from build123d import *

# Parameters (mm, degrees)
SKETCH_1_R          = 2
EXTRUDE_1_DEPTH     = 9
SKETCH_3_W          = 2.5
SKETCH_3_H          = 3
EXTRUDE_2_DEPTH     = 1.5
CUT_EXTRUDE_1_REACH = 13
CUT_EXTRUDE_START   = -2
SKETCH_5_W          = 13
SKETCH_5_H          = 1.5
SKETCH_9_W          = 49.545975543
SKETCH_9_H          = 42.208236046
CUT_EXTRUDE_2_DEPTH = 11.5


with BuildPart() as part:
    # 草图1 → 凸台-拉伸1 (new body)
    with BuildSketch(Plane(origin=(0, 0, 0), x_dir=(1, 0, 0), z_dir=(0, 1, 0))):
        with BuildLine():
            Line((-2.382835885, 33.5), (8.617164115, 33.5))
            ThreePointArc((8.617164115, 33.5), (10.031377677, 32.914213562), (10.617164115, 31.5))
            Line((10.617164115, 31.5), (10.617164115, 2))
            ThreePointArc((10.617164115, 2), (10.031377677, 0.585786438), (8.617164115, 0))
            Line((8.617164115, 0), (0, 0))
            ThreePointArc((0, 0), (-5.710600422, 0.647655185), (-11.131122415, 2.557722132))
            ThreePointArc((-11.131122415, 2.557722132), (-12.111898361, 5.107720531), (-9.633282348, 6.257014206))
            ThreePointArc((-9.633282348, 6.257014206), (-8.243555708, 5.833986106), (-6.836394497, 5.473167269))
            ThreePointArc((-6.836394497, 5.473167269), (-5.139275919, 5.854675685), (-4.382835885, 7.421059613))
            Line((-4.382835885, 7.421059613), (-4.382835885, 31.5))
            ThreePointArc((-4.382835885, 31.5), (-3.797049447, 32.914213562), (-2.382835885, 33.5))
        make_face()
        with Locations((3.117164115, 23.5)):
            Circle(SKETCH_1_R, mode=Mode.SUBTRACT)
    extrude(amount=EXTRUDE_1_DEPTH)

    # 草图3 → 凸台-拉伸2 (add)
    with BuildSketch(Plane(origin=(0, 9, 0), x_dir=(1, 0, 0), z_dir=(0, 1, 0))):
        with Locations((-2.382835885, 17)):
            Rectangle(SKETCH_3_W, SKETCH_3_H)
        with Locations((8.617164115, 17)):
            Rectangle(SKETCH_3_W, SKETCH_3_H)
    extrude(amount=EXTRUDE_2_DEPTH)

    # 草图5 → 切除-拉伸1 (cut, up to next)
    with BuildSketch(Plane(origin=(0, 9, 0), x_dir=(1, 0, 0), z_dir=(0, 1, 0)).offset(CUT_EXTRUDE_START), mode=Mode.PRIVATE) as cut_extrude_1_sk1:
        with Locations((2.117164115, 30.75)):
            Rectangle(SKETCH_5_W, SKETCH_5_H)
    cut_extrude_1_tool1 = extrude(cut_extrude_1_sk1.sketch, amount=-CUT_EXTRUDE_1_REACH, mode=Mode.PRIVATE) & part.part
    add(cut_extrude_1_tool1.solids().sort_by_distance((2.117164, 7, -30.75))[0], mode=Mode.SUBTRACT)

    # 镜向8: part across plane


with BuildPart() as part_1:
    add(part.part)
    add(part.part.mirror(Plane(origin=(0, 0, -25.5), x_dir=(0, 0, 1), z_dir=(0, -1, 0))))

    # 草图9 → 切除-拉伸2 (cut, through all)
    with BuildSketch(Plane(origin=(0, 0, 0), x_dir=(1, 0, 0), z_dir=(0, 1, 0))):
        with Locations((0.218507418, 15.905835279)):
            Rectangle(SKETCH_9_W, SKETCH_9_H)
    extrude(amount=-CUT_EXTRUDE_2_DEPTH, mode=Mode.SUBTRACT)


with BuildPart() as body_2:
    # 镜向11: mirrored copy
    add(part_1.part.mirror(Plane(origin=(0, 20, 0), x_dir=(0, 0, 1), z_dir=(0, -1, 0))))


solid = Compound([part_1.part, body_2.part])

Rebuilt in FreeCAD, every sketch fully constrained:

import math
import FreeCAD as App
import Part
import Sketcher
from FreeCAD import Vector
Q = App.Units.Quantity

doc = App.newDocument("Part")
params = doc.addObject("Spreadsheet::Sheet", "Params")
for row, (alias, value) in enumerate([
    ("sketch1_diameter", "4 mm"),
    ("sketch1_radius", "25.5 mm"),
    ("sketch1_width", "11 mm"),
    ("sketch1_height", "29.5 mm"),
    ("pad1_length", "9 mm"),
    ("sketch2_height", "3 mm"),
    ("sketch2_width", "2.5 mm"),
    ("pad2_length", "1.5 mm"),
    ("sketch3_width", "13 mm"),
    ("sketch3_height", "1.5 mm"),
], start=1):
    params.set(f"A{row}", alias)
    params.set(f"B{row}", "=" + value)
    params.setAlias(f"B{row}", alias)

body = doc.addObject("PartDesign::Body", "Body")

# Sketch on XZ plane
sketch1 = body.newObject("Sketcher::SketchObject", "Sketch")
sketch1.AttachmentSupport = (doc.getObject("XZ_Plane"), [""])
sketch1.MapMode = "FlatFace"
sketch1.addGeometry(Part.LineSegment(Vector(8.617164, -33.5, 0), Vector(-2.382836, -33.5, 0)), False)
sketch1.addGeometry(Part.ArcOfCircle(Part.Circle(Vector(-2.382836, -31.5, 0), Vector(0, 0, 1), 2), math.radians(-180), math.radians(-90)), False)
sketch1.addGeometry(Part.LineSegment(Vector(-4.382836, -31.5, 0), Vector(-4.382836, -7.42106, 0)), False)
sketch1.addGeometry(Part.ArcOfCircle(Part.Circle(Vector(-6.382836, -7.42106, 0), Vector(0, 0, 1), 2), math.radians(0), math.radians(103.10753)), False)
sketch1.addGeometry(Part.ArcOfCircle(Part.Circle(Vector(0.571115, -37.286101, 0), Vector(0, 0, 1), 32.663955), math.radians(103.10753), math.radians(108.204253)), False)
sketch1.addGeometry(Part.ArcOfCircle(Part.Circle(Vector(-10.258093, -4.357116, 0), Vector(0, 0, 1), 2), math.radians(115.88171), math.radians(288.204253)), False)
sketch1.addGeometry(Part.ArcOfCircle(Part.Circle(Vector(0, -25.5, 0), Vector(0, 0, 1), 25.5), math.radians(90), math.radians(115.88171)), False)
sketch1.addGeometry(Part.LineSegment(Vector(0, 0, 0), Vector(8.617164, 0, 0)), False)
sketch1.addGeometry(Part.ArcOfCircle(Part.Circle(Vector(8.617164, -2, 0), Vector(0, 0, 1), 2), math.radians(0), math.radians(90)), False)
sketch1.addGeometry(Part.LineSegment(Vector(10.617164, -2, 0), Vector(10.617164, -31.5, 0)), False)
sketch1.addGeometry(Part.ArcOfCircle(Part.Circle(Vector(8.617164, -31.5, 0), Vector(0, 0, 1), 2), math.radians(-90), math.radians(0)), False)
sketch1.addGeometry(Part.Circle(Vector(3.117164, -23.5, 0), Vector(0, 0, 1), 2), False)
sketch1.addConstraint(Sketcher.Constraint("Tangent", 0, 2, 1, 2))
sketch1.addConstraint(Sketcher.Constraint("Tangent", 1, 1, 2, 1))
sketch1.addConstraint(Sketcher.Constraint("Tangent", 2, 2, 3, 1))
sketch1.addConstraint(Sketcher.Constraint("Tangent", 3, 2, 4, 1))
sketch1.addConstraint(Sketcher.Constraint("Tangent", 4, 2, 5, 2))
sketch1.addConstraint(Sketcher.Constraint("Tangent", 5, 1, 6, 2))
sketch1.addConstraint(Sketcher.Constraint("Tangent", 6, 1, 7, 1))
sketch1.addConstraint(Sketcher.Constraint("Tangent", 7, 2, 8, 2))
sketch1.addConstraint(Sketcher.Constraint("Tangent", 8, 1, 9, 1))
sketch1.addConstraint(Sketcher.Constraint("Tangent", 9, 2, 10, 2))
sketch1.addConstraint(Sketcher.Constraint("Tangent", 10, 1, 0, 1))
sketch1.addConstraint(Sketcher.Constraint("Horizontal", 0))
sketch1.addConstraint(Sketcher.Constraint("Vertical", 2))
sketch1.addConstraint(Sketcher.Constraint("Horizontal", 7))
sketch1.addConstraint(Sketcher.Constraint("Vertical", 9))
sketch1.addConstraint(Sketcher.Constraint("Coincident", 6, 1, -1, 1))
sketch1.addConstraint(Sketcher.Constraint("Equal", 1, 3))
sketch1.addConstraint(Sketcher.Constraint("Equal", 3, 5))
sketch1.addConstraint(Sketcher.Constraint("Equal", 5, 8))
sketch1.addConstraint(Sketcher.Constraint("Equal", 8, 10))
sketch1.addConstraint(Sketcher.Constraint("Equal", 10, 11))
sketch1.addConstraint(Sketcher.Constraint("Diameter", 11, Q("4 mm")))
sketch1.addConstraint(Sketcher.Constraint("Radius", 6, Q("25.5 mm")))
sketch1.addConstraint(Sketcher.Constraint("DistanceX", 0, 2, 0, 1, Q("11 mm")))
sketch1.addConstraint(Sketcher.Constraint("DistanceY", 9, 2, 9, 1, Q("29.5 mm")))
sketch1.addConstraint(Sketcher.Constraint("DistanceY", 6, 3, 11, 3, Q("2 mm")))
sketch1.addConstraint(Sketcher.Constraint("DistanceX", 1, 3, 11, 3, Q("5.5 mm")))
sketch1.addConstraint(Sketcher.Constraint("Radius", 4, Q("32.663955 mm")))
sketch1.addConstraint(Sketcher.Constraint("DistanceY", 2, 1, 2, 2, Q("24.07894 mm")))
sketch1.addConstraint(Sketcher.Constraint("DistanceY", 4, 3, -1, 1, Q("37.286101 mm")))
sketch1.addConstraint(Sketcher.Constraint("DistanceX", 5, 3, 3, 2, Q("3.421699 mm")))
sketch1.setExpression("Constraints[21]", "Params.sketch1_diameter")
sketch1.setExpression("Constraints[22]", "Params.sketch1_radius")
sketch1.setExpression("Constraints[23]", "Params.sketch1_width")
sketch1.setExpression("Constraints[24]", "Params.sketch1_height")
pad1 = body.newObject("PartDesign::Pad", "Pad")
pad1.Profile = sketch1
pad1.setExpression("Length", "Params.pad1_length")
pad1.Reversed = True

# Sketch on XZ plane
sketch2 = body.newObject("Sketcher::SketchObject", "Sketch001")
sketch2.AttachmentSupport = (doc.getObject("XZ_Plane"), [""])
sketch2.MapMode = "FlatFace"
sketch2.AttachmentOffset = App.Placement(Vector(0, 0, -9), App.Rotation())
sketch2.addGeometry(Part.LineSegment(Vector(-3.632836, -18.5, 0), Vector(-3.632836, -15.5, 0)), False)
sketch2.addGeometry(Part.LineSegment(Vector(-3.632836, -15.5, 0), Vector(-1.132836, -15.5, 0)), False)
sketch2.addGeometry(Part.LineSegment(Vector(-1.132836, -15.5, 0), Vector(-1.132836, -18.5, 0)), False)
sketch2.addGeometry(Part.LineSegment(Vector(-1.132836, -18.5, 0), Vector(-3.632836, -18.5, 0)), False)
sketch2.addGeometry(Part.LineSegment(Vector(7.367164, -18.5, 0), Vector(7.367164, -15.5, 0)), False)
sketch2.addGeometry(Part.LineSegment(Vector(7.367164, -15.5, 0), Vector(9.867164, -15.5, 0)), False)
sketch2.addGeometry(Part.LineSegment(Vector(9.867164, -15.5, 0), Vector(9.867164, -18.5, 0)), False)
sketch2.addGeometry(Part.LineSegment(Vector(9.867164, -18.5, 0), Vector(7.367164, -18.5, 0)), False)
sketch2.addConstraint(Sketcher.Constraint("Coincident", 0, 2, 1, 1))
sketch2.addConstraint(Sketcher.Constraint("Coincident", 1, 2, 2, 1))
sketch2.addConstraint(Sketcher.Constraint("Coincident", 2, 2, 3, 1))
sketch2.addConstraint(Sketcher.Constraint("Coincident", 3, 2, 0, 1))
sketch2.addConstraint(Sketcher.Constraint("Coincident", 4, 2, 5, 1))
sketch2.addConstraint(Sketcher.Constraint("Coincident", 5, 2, 6, 1))
sketch2.addConstraint(Sketcher.Constraint("Coincident", 6, 2, 7, 1))
sketch2.addConstraint(Sketcher.Constraint("Coincident", 7, 2, 4, 1))
sketch2.addConstraint(Sketcher.Constraint("Vertical", 0))
sketch2.addConstraint(Sketcher.Constraint("Horizontal", 1))
sketch2.addConstraint(Sketcher.Constraint("Vertical", 2))
sketch2.addConstraint(Sketcher.Constraint("Horizontal", 3))
sketch2.addConstraint(Sketcher.Constraint("Vertical", 4))
sketch2.addConstraint(Sketcher.Constraint("Horizontal", 5))
sketch2.addConstraint(Sketcher.Constraint("Vertical", 6))
sketch2.addConstraint(Sketcher.Constraint("Horizontal", 7))
sketch2.addConstraint(Sketcher.Constraint("Horizontal", 1, 2, 4, 2))
sketch2.addConstraint(Sketcher.Constraint("Horizontal", 3, 2, 6, 2))
sketch2.addConstraint(Sketcher.Constraint("Equal", 3, 5))
sketch2.addConstraint(Sketcher.Constraint("DistanceY", 0, 1, 0, 2, Q("3 mm")))
sketch2.addConstraint(Sketcher.Constraint("DistanceX", 1, 1, 1, 2, Q("2.5 mm")))
sketch2.addConstraint(Sketcher.Constraint("DistanceX", 0, 2, 4, 2, Q("11 mm")))
sketch2.addConstraint(Sketcher.Constraint("DistanceY", 0, 2, -1, 1, Q("15.5 mm")))
sketch2.addConstraint(Sketcher.Constraint("DistanceX", 0, 2, -1, 1, Q("3.632836 mm")))
sketch2.setExpression("Constraints[19]", "Params.sketch2_height")
sketch2.setExpression("Constraints[20]", "Params.sketch2_width")
pad2 = body.newObject("PartDesign::Pad", "Pad001")
pad2.Profile = sketch2
pad2.setExpression("Length", "Params.pad2_length")
pad2.Reversed = True

# Sketch on XZ plane
sketch3 = body.newObject("Sketcher::SketchObject", "Sketch002")
sketch3.AttachmentSupport = (doc.getObject("XZ_Plane"), [""])
sketch3.MapMode = "FlatFace"
sketch3.AttachmentOffset = App.Placement(Vector(0, 0, -7), App.Rotation())
sketch3.addGeometry(Part.LineSegment(Vector(-4.382836, -31.5, 0), Vector(-4.382836, -30, 0)), False)
sketch3.addGeometry(Part.LineSegment(Vector(-4.382836, -30, 0), Vector(8.617164, -30, 0)), False)
sketch3.addGeometry(Part.LineSegment(Vector(8.617164, -30, 0), Vector(8.617164, -31.5, 0)), False)
sketch3.addGeometry(Part.LineSegment(Vector(8.617164, -31.5, 0), Vector(-4.382836, -31.5, 0)), False)
sketch3.addConstraint(Sketcher.Constraint("Coincident", 0, 2, 1, 1))
sketch3.addConstraint(Sketcher.Constraint("Coincident", 1, 2, 2, 1))
sketch3.addConstraint(Sketcher.Constraint("Coincident", 2, 2, 3, 1))
sketch3.addConstraint(Sketcher.Constraint("Coincident", 3, 2, 0, 1))
sketch3.addConstraint(Sketcher.Constraint("Vertical", 0))
sketch3.addConstraint(Sketcher.Constraint("Horizontal", 1))
sketch3.addConstraint(Sketcher.Constraint("Vertical", 2))
sketch3.addConstraint(Sketcher.Constraint("Horizontal", 3))
sketch3.addConstraint(Sketcher.Constraint("DistanceX", 1, 1, 1, 2, Q("13 mm")))
sketch3.addConstraint(Sketcher.Constraint("DistanceY", 0, 1, 0, 2, Q("1.5 mm")))
sketch3.addConstraint(Sketcher.Constraint("DistanceY", 0, 2, -1, 1, Q("30 mm")))
sketch3.addConstraint(Sketcher.Constraint("DistanceX", 0, 2, -1, 1, Q("4.382836 mm")))
sketch3.setExpression("Constraints[8]", "Params.sketch3_width")
sketch3.setExpression("Constraints[9]", "Params.sketch3_height")
pocket1 = body.newObject("PartDesign::Pocket", "Pocket")
pocket1.Profile = sketch3
pocket1.Type = "UpToFirst"
pocket1.Reversed = True
body2 = doc.addObject("PartDesign::Body", "Body001")
doc.recompute()

body2.BaseFeature = body
doc.recompute()

mirroring = doc.addObject("Part::Mirroring", "Mirroring")
mirroring.Source = body
mirroring.Base = Vector(0, 0, -25.5)
mirroring.Normal = Vector(0, -1, 0)
body3 = doc.addObject("PartDesign::Body", "Body002")
body3.BaseFeature = mirroring
boolean = body2.newObject("PartDesign::Boolean", "Boolean")
boolean.Type = "Fuse"
boolean.addObjects([body3])
doc.recompute()

# Sketch on XZ plane
sketch4 = body2.newObject("Sketcher::SketchObject", "Sketch003")
sketch4.AttachmentSupport = (doc.getObject("XZ_Plane001"), [""])
sketch4.MapMode = "FlatFace"
sketch4.addGeometry(Part.LineSegment(Vector(-24.55448, -37.009953, 0), Vector(-24.55448, 5.198283, 0)), False)
sketch4.addGeometry(Part.LineSegment(Vector(-24.55448, 5.198283, 0), Vector(24.991495, 5.198283, 0)), False)
sketch4.addGeometry(Part.LineSegment(Vector(24.991495, 5.198283, 0), Vector(24.991495, -37.009953, 0)), False)
sketch4.addGeometry(Part.LineSegment(Vector(24.991495, -37.009953, 0), Vector(-24.55448, -37.009953, 0)), False)
sketch4.addConstraint(Sketcher.Constraint("Coincident", 0, 2, 1, 1))
sketch4.addConstraint(Sketcher.Constraint("Coincident", 1, 2, 2, 1))
sketch4.addConstraint(Sketcher.Constraint("Coincident", 2, 2, 3, 1))
sketch4.addConstraint(Sketcher.Constraint("Coincident", 3, 2, 0, 1))
sketch4.addConstraint(Sketcher.Constraint("Vertical", 0))
sketch4.addConstraint(Sketcher.Constraint("Horizontal", 1))
sketch4.addConstraint(Sketcher.Constraint("Vertical", 2))
sketch4.addConstraint(Sketcher.Constraint("Horizontal", 3))
sketch4.addConstraint(Sketcher.Constraint("DistanceX", 1, 1, 1, 2, Q("49.545976 mm")))
sketch4.addConstraint(Sketcher.Constraint("DistanceY", 0, 1, 0, 2, Q("42.208236 mm")))
sketch4.addConstraint(Sketcher.Constraint("DistanceX", 0, 2, -1, 1, Q("24.55448 mm")))
sketch4.addConstraint(Sketcher.Constraint("DistanceY", -1, 1, 0, 2, Q("5.198283 mm")))
pocket2 = body2.newObject("PartDesign::Pocket", "Pocket001")
pocket2.Profile = sketch4
pocket2.Type = "ThroughAll"
pocket2.Reversed = True
body4 = doc.addObject("PartDesign::Body", "Body003")
doc.recompute()

mirroring2 = doc.addObject("Part::Mirroring", "Mirroring001")
mirroring2.Source = body2
mirroring2.Base = Vector(0, 20, 0)
mirroring2.Normal = Vector(0, -1, 0)
body4.BaseFeature = mirroring2
doc.recompute()
mirroring.Visibility = False
mirroring2.Visibility = False

doc.recompute()
